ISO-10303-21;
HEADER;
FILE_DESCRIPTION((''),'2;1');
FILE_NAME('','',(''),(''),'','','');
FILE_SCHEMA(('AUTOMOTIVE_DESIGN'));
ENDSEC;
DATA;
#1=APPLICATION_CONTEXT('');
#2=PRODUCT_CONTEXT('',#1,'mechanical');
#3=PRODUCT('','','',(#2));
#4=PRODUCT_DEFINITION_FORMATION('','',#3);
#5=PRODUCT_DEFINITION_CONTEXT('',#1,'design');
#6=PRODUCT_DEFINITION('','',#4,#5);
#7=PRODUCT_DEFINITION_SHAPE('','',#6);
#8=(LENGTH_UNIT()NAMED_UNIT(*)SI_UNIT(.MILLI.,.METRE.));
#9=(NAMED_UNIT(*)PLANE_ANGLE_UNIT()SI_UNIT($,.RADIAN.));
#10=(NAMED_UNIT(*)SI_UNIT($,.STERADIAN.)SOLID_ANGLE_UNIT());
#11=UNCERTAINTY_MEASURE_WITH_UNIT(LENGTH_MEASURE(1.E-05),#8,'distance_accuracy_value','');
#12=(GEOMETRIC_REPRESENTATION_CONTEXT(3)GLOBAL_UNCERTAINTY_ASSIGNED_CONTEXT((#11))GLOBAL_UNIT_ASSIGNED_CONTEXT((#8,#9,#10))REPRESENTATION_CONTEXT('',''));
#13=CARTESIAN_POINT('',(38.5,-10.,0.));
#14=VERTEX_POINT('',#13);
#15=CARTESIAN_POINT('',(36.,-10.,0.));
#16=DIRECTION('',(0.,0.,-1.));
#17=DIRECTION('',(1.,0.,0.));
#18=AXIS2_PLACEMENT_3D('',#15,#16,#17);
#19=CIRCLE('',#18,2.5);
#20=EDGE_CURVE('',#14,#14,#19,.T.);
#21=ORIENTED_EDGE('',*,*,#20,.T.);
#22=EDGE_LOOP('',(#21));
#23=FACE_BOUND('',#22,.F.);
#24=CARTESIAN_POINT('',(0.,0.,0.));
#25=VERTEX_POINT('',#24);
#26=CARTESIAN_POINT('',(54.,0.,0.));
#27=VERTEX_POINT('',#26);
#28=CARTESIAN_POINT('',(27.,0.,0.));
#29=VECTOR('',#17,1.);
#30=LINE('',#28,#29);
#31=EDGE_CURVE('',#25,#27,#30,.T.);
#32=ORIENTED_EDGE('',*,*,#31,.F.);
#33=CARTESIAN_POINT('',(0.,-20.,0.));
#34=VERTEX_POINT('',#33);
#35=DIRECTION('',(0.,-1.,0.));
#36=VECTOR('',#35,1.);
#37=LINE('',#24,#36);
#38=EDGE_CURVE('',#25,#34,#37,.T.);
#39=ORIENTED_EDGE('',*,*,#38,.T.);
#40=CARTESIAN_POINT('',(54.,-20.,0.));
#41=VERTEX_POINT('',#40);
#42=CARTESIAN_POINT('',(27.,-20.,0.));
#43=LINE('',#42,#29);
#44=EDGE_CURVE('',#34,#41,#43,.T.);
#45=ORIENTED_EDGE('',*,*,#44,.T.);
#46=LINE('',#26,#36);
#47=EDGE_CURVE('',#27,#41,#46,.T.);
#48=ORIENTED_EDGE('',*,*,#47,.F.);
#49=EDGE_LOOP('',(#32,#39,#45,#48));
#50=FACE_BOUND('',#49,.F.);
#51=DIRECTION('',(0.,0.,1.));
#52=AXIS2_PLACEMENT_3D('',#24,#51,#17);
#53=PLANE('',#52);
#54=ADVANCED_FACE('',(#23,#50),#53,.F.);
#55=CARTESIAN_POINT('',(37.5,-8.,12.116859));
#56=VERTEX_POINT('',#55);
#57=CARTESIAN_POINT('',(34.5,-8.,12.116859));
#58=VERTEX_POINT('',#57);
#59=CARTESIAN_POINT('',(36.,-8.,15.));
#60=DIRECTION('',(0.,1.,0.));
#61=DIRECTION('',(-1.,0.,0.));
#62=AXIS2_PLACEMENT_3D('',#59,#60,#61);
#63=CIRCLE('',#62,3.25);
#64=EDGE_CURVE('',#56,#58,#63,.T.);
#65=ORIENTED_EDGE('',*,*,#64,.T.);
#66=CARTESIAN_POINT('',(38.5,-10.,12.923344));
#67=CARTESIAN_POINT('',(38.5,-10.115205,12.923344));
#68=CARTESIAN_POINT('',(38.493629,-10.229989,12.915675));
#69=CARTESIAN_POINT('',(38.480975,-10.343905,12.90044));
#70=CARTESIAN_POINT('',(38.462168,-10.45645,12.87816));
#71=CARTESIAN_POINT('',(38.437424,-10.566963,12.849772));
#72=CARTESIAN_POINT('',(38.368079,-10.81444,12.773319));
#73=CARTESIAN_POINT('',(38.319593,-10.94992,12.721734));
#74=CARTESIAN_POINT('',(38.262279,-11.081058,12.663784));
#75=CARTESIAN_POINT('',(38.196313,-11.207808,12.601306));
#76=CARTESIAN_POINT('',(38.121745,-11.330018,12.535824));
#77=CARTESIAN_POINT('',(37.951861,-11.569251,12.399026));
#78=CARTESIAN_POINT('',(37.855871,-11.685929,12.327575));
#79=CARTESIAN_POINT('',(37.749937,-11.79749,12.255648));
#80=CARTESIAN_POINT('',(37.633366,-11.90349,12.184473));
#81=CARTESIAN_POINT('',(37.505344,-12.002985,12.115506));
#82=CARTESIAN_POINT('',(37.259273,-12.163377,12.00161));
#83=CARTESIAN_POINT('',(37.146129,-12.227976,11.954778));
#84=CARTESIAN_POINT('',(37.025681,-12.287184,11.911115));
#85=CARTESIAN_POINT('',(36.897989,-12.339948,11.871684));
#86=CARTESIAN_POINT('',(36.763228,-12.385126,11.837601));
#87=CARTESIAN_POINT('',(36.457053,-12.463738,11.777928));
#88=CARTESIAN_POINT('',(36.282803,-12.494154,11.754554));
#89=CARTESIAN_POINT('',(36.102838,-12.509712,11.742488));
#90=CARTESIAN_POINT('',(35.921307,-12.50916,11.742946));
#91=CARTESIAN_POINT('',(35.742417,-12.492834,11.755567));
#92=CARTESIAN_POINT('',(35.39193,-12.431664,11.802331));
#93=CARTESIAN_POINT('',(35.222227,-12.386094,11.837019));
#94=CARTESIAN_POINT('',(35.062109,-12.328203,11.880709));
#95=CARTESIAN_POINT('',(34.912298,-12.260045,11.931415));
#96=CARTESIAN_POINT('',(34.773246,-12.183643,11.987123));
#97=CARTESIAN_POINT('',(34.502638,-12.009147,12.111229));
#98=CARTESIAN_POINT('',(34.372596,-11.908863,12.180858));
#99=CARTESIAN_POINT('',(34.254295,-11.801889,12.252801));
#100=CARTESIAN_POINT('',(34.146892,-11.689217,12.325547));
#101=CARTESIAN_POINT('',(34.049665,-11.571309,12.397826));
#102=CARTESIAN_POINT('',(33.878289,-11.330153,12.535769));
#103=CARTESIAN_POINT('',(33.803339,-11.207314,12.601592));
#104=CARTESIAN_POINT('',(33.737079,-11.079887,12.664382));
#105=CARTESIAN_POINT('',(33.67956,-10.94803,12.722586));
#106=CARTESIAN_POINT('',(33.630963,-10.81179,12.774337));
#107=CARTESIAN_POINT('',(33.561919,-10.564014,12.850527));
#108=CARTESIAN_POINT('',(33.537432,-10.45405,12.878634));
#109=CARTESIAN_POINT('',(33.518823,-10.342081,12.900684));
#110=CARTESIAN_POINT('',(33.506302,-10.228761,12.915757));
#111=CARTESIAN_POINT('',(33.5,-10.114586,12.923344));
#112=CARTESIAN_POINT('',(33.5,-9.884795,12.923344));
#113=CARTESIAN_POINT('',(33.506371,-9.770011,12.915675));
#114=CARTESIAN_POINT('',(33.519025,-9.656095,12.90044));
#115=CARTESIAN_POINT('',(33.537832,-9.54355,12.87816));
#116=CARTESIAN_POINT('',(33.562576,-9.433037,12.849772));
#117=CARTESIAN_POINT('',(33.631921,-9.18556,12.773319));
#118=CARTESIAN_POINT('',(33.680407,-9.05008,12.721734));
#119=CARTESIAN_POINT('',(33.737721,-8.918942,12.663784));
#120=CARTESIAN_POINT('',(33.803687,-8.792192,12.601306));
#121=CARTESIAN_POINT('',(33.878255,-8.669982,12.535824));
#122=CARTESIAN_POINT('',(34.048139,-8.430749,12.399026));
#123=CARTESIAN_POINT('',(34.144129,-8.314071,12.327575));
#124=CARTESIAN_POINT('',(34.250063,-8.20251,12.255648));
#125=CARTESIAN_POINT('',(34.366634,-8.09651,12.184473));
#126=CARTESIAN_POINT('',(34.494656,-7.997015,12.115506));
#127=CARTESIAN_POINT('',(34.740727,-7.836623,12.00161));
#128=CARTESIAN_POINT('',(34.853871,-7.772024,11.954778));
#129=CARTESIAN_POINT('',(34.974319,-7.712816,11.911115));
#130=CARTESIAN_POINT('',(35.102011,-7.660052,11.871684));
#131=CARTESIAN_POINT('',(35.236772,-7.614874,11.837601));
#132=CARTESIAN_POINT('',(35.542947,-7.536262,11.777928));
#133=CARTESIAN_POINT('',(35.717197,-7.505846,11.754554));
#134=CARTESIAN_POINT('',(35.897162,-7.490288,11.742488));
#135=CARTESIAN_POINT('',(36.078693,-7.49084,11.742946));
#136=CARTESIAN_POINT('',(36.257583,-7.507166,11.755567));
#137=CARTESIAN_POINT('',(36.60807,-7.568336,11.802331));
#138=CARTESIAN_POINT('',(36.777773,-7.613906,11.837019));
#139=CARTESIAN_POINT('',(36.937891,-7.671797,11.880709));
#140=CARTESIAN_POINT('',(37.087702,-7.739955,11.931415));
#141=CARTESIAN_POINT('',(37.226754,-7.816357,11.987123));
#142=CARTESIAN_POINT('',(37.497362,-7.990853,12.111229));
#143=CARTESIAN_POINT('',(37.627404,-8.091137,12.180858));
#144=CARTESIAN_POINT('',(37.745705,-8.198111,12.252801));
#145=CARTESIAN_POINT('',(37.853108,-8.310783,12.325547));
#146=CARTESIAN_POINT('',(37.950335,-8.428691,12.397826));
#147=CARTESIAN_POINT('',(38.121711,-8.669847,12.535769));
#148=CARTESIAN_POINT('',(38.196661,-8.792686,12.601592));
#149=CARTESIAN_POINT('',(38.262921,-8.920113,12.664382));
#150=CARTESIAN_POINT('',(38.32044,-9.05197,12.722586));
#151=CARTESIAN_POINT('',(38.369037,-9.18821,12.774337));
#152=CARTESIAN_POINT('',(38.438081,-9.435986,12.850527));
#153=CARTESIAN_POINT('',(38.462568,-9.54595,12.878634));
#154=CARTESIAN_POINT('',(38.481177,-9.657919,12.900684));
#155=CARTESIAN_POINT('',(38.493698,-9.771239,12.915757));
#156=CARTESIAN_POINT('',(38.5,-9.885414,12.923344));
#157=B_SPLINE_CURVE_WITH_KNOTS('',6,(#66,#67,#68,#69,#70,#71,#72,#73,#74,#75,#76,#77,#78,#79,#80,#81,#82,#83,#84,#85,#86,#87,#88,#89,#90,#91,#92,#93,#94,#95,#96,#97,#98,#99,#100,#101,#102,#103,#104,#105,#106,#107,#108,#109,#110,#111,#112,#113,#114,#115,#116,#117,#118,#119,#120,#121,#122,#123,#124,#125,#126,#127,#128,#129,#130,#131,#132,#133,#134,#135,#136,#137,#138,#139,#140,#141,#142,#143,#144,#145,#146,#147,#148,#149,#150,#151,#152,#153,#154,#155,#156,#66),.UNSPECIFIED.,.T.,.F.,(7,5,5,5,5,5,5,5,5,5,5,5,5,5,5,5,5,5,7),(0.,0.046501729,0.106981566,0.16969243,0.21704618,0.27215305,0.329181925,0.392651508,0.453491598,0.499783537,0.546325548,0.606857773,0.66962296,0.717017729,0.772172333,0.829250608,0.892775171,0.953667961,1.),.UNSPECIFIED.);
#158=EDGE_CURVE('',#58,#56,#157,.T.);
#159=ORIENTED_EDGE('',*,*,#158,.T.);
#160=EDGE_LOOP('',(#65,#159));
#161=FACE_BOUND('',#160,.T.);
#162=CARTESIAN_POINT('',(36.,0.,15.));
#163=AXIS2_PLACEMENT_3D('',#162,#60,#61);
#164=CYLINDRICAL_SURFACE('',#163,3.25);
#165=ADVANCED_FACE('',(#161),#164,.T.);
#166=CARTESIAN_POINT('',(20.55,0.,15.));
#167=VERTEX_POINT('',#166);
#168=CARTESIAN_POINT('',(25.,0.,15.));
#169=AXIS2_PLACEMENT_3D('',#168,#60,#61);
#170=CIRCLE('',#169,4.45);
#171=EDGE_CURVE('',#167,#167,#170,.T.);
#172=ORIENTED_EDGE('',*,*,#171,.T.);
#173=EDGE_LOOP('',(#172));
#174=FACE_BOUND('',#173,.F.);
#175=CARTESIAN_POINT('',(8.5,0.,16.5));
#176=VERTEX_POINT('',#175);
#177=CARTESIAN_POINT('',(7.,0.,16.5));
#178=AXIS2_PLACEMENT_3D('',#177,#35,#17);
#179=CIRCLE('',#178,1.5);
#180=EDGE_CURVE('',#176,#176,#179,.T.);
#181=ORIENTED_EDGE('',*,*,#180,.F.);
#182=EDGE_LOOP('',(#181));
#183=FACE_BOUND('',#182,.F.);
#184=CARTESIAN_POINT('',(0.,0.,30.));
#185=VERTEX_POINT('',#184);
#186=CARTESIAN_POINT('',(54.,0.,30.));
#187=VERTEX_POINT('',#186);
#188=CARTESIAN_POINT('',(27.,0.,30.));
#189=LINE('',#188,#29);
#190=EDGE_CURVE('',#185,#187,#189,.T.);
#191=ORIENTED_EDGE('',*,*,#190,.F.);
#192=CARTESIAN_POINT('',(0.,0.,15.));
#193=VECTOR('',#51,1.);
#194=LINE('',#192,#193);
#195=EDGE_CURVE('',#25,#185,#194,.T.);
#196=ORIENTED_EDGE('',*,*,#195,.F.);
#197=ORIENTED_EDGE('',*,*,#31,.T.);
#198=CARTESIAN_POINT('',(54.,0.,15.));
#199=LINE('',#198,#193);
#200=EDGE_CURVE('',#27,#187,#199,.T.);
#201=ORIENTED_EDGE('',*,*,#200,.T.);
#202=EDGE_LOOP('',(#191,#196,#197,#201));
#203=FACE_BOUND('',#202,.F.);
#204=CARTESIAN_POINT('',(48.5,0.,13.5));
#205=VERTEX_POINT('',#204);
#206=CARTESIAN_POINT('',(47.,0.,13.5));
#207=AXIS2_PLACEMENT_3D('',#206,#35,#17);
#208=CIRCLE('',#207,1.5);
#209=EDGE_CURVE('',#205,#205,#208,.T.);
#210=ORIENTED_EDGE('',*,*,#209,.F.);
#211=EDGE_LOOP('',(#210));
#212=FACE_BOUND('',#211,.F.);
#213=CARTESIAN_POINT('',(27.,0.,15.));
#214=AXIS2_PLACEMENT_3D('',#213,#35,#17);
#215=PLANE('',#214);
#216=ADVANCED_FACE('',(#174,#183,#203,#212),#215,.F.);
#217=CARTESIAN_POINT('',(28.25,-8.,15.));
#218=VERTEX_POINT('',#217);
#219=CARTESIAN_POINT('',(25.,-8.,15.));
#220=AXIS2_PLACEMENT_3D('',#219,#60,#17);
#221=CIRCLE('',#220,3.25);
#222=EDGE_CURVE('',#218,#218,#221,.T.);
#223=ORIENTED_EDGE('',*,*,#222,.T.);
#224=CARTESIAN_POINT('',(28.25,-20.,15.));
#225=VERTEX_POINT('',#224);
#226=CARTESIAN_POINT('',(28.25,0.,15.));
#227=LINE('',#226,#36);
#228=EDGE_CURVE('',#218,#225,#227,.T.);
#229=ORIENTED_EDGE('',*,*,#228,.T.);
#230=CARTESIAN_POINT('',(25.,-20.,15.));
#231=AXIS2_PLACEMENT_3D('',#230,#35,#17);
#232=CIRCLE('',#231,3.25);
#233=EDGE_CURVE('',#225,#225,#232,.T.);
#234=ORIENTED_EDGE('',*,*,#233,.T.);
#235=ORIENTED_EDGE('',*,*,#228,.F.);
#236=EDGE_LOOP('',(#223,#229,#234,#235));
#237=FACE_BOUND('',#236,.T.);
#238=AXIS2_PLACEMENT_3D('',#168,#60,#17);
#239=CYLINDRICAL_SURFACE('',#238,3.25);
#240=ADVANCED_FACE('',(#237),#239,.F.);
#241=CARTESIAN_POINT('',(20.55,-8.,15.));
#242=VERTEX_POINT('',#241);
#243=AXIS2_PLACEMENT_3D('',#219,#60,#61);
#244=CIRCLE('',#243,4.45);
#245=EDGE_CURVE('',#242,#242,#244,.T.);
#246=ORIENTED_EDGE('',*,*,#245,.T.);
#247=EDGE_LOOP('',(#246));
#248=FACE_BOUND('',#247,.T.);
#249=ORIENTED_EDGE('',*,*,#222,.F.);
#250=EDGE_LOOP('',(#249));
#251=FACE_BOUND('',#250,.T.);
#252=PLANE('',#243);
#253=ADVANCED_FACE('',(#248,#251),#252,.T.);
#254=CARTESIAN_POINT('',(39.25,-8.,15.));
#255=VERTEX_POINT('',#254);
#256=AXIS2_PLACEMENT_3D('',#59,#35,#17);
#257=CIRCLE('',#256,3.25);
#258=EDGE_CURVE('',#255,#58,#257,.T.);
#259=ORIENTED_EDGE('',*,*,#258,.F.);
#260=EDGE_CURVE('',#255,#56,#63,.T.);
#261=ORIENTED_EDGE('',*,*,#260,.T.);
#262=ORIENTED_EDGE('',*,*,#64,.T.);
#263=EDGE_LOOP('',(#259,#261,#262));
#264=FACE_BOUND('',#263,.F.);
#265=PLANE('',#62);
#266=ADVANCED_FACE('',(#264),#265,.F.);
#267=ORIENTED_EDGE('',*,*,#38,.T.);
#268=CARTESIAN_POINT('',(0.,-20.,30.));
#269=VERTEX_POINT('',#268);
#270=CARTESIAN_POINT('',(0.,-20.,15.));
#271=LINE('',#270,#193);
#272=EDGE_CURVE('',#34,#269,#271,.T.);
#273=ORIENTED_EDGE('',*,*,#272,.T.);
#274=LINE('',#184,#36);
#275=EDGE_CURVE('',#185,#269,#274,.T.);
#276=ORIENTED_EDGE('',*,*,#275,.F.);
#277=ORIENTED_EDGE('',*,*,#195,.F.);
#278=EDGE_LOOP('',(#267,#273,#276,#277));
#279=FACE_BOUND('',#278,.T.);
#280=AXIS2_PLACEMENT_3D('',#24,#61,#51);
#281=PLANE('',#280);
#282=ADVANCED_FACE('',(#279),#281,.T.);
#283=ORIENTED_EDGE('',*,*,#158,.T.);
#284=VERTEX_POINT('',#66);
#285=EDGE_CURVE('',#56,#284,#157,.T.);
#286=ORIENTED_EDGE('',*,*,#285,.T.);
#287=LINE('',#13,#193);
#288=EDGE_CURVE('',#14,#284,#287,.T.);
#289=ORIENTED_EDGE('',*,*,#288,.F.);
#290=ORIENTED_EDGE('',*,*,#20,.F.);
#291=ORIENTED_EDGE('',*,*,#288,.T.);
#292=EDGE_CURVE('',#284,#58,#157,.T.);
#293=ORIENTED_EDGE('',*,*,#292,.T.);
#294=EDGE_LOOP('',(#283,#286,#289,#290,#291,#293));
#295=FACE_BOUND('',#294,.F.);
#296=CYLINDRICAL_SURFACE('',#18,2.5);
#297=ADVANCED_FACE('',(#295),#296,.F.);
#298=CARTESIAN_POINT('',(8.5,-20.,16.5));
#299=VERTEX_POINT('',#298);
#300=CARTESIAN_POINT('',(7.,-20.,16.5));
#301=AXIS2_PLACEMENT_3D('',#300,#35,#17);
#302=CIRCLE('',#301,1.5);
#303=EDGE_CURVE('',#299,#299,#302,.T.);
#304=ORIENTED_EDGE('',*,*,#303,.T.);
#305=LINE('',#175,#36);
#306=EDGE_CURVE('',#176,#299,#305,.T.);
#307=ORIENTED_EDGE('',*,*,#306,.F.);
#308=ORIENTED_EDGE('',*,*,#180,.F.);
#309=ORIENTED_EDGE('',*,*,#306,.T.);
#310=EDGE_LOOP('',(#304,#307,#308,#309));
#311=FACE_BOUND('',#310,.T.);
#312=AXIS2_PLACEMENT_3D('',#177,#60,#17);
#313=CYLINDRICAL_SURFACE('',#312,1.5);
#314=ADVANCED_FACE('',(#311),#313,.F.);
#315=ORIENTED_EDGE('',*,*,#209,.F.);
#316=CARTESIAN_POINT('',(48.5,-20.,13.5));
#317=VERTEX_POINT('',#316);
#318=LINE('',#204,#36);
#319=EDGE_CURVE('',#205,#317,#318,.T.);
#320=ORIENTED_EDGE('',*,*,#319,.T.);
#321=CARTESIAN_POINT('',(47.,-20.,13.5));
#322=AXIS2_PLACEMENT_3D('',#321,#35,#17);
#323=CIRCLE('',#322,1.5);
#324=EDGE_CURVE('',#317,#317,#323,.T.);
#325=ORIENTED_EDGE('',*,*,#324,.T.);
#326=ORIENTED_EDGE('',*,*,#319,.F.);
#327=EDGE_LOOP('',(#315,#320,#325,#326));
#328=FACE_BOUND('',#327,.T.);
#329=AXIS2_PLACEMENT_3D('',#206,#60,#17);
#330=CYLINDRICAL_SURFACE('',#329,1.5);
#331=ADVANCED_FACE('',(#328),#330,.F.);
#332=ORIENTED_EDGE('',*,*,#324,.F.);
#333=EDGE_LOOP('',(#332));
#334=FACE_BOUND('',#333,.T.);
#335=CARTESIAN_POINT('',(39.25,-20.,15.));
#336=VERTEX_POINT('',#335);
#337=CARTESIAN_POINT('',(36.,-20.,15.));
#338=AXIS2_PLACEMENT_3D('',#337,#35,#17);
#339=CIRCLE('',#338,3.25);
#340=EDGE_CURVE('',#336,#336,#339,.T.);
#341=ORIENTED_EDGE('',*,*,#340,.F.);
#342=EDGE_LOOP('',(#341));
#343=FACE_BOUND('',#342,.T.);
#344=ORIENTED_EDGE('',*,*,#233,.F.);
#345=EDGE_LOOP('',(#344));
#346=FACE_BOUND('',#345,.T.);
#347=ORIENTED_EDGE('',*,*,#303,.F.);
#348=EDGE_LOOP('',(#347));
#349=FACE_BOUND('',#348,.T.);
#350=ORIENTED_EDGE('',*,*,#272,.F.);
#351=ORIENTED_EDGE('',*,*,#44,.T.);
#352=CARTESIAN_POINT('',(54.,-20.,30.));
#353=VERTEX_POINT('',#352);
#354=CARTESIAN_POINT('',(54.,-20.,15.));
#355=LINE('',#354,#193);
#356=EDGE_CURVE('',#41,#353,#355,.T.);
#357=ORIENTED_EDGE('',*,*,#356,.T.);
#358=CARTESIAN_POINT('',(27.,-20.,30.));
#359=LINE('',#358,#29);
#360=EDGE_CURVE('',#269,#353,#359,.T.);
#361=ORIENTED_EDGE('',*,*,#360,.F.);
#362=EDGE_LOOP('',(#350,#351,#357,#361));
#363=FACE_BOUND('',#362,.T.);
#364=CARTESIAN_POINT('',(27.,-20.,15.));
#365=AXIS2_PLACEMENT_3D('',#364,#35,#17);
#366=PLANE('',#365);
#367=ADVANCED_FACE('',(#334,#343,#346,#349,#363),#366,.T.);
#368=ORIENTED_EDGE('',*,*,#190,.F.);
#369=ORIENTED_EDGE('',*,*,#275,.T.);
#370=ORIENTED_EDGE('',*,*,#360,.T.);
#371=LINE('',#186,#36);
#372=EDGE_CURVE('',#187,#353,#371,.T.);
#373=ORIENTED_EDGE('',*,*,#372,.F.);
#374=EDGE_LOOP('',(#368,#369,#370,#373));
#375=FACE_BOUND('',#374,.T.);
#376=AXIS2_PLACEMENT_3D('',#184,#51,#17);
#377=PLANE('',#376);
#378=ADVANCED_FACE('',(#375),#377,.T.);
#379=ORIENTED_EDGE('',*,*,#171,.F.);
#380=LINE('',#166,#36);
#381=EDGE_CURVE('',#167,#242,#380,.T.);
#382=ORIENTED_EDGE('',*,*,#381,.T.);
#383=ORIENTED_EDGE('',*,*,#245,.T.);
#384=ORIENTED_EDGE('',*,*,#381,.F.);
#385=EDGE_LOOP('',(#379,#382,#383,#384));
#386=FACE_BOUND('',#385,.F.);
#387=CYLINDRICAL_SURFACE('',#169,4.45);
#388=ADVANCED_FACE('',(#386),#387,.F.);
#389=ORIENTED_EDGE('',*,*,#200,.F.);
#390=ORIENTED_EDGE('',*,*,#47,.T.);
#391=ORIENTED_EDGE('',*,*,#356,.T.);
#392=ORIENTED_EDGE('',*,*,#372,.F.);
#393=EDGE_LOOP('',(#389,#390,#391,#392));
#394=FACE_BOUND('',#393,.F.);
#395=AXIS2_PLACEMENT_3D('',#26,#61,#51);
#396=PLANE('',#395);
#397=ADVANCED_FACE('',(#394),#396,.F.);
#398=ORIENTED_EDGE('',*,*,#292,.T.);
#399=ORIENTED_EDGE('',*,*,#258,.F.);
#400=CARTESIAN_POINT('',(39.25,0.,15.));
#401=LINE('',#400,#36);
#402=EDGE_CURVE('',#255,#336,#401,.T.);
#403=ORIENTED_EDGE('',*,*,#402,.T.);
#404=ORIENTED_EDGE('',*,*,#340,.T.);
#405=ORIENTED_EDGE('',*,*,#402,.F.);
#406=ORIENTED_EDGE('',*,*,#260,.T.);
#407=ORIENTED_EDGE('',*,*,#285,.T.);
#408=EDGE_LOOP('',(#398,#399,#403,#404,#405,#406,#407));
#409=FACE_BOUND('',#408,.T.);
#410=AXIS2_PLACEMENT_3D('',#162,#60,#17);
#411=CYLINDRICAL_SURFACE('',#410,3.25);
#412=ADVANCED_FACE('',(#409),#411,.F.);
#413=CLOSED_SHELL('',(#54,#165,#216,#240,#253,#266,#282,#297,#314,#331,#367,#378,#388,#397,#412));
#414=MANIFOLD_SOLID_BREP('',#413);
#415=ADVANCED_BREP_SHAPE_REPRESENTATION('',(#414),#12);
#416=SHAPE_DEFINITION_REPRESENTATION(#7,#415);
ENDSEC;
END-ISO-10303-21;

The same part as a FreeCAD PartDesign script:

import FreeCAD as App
import Part
import Sketcher

doc = App.newDocument("Part")
params = doc.addObject("Spreadsheet::Sheet", "Params")
for row, (alias, value) in enumerate([
    ("sketch1_diameter", "3 mm"),
    ("sketch1_diameter2", "6.5 mm"),
    ("sketch1_width", "54 mm"),
    ("sketch1_height", "30 mm"),
    ("pad1_length", "20 mm"),
    ("sketch2_diameter", "5 mm"),
    ("pocket1_length", "16 mm"),
    ("sketch3_diameter", "8.9 mm"),
    ("pocket2_length", "8 mm"),
    ("sketch4_diameter", "6.5 mm"),
    ("pad2_length", "8 mm"),
], start=1):
    params.set(f"A{row}", alias)
    params.set(f"B{row}", "=" + value)
    params.setAlias(f"B{row}", alias)

body = doc.addObject("PartDesign::Body", "Body")

# Sketch on XZ plane
sketch1 = body.newObject("Sketcher::SketchObject", "Sketch")
sketch1.AttachmentSupport = (doc.getObject("XZ_Plane"), [""])
sketch1.MapMode = "FlatFace"
sketch1.addGeometry([
    Part.LineSegment(App.Vector(0, 30, 0), App.Vector(0, 0, 0)),  # 0
    Part.LineSegment(App.Vector(0, 0, 0), App.Vector(54, 0, 0)),  # 1
    Part.LineSegment(App.Vector(54, 0, 0), App.Vector(54, 30, 0)),  # 2
    Part.LineSegment(App.Vector(54, 30, 0), App.Vector(0, 30, 0)),  # 3
    Part.Circle(App.Vector(47, 13.5, 0), App.Vector(0, 0, 1), 1.5),  # 4
    Part.Circle(App.Vector(7, 16.5, 0), App.Vector(0, 0, 1), 1.5),  # 5
    Part.Circle(App.Vector(25, 15, 0), App.Vector(0, 0, 1), 3.25),  # 6
    Part.Circle(App.Vector(36, 15, 0), App.Vector(0, 0, 1), 3.25),  # 7
], False)
sketch1.addConstraint([
    Sketcher.Constraint("Coincident", 0, 2, 1, 1),
    Sketcher.Constraint("Coincident", 1, 2, 2, 1),
    Sketcher.Constraint("Coincident", 2, 2, 3, 1),
    Sketcher.Constraint("Coincident", 3, 2, 0, 1),
    Sketcher.Constraint("Vertical", 0),
    Sketcher.Constraint("Horizontal", 1),
    Sketcher.Constraint("Vertical", 2),
    Sketcher.Constraint("Horizontal", 3),
    Sketcher.Constraint("Coincident", 0, 2, -1, 1),
    Sketcher.Constraint("Equal", 4, 5),
    Sketcher.Constraint("Equal", 6, 7),
    Sketcher.Constraint("Horizontal", 6, 3, 7, 3),
    Sketcher.Constraint("Diameter", 4, 3.0),
    Sketcher.Constraint("Diameter", 6, 6.5),
    Sketcher.Constraint("DistanceX", 1, 1, 1, 2, 54.0),
    Sketcher.Constraint("DistanceY", 0, 2, 0, 1, 30.0),
    Sketcher.Constraint("DistanceX", -1, 1, 4, 3, 47.0),
    Sketcher.Constraint("DistanceX", -1, 1, 5, 3, 7.0),
    Sketcher.Constraint("DistanceX", -1, 1, 6, 3, 25.0),
    Sketcher.Constraint("DistanceY", -1, 1, 6, 3, 15.0),
    Sketcher.Constraint("DistanceX", -1, 1, 7, 3, 36.0),
    Sketcher.Constraint("DistanceY", 4, 3, 5, 3, 3.0),
    Sketcher.Constraint("DistanceY", -1, 1, 4, 3, 13.5),
])
sketch1.setExpression("Constraints[12]", "Params.sketch1_diameter")
sketch1.setExpression("Constraints[13]", "Params.sketch1_diameter2")
sketch1.setExpression("Constraints[14]", "Params.sketch1_width")
sketch1.setExpression("Constraints[15]", "Params.sketch1_height")
pad1 = body.newObject("PartDesign::Pad", "Pad")
pad1.Profile = sketch1
pad1.setExpression("Length", "Params.pad1_length")

# Sketch on XY plane
sketch2 = body.newObject("Sketcher::SketchObject", "Sketch001")
sketch2.AttachmentSupport = (doc.getObject("XY_Plane"), [""])
sketch2.MapMode = "FlatFace"
sketch2.addGeometry(Part.Circle(App.Vector(36, -10, 0), App.Vector(0, 0, 1), 2.5), False)
sketch2.addConstraint([
    Sketcher.Constraint("Diameter", 0, 5.0),
    Sketcher.Constraint("DistanceX", -1, 1, 0, 3, 36.0),
    Sketcher.Constraint("DistanceY", 0, 3, -1, 1, 10.0),
])
sketch2.setExpression("Constraints[0]", "Params.sketch2_diameter")
pocket1 = body.newObject("PartDesign::Pocket", "Pocket")
pocket1.Profile = sketch2
pocket1.setExpression("Length", "Params.pocket1_length")
pocket1.Reversed = True

# Sketch on XZ plane
sketch3 = body.newObject("Sketcher::SketchObject", "Sketch002")
sketch3.AttachmentSupport = (doc.getObject("XZ_Plane"), [""])
sketch3.MapMode = "FlatFace"
sketch3.addGeometry(Part.Circle(App.Vector(25, 15, 0), App.Vector(0, 0, 1), 4.45), False)
sketch3.addConstraint([
    Sketcher.Constraint("Diameter", 0, 8.9),
    Sketcher.Constraint("DistanceX", -1, 1, 0, 3, 25.0),
    Sketcher.Constraint("DistanceY", -1, 1, 0, 3, 15.0),
])
sketch3.setExpression("Constraints[0]", "Params.sketch3_diameter")
pocket2 = body.newObject("PartDesign::Pocket", "Pocket001")
pocket2.Profile = sketch3
pocket2.setExpression("Length", "Params.pocket2_length")
pocket2.Reversed = True

# Sketch on XZ plane
sketch4 = body.newObject("Sketcher::SketchObject", "Sketch003")
sketch4.AttachmentSupport = (doc.getObject("XZ_Plane"), [""])
sketch4.MapMode = "FlatFace"
sketch4.addGeometry(Part.Circle(App.Vector(36, 15, 0), App.Vector(0, 0, 1), 3.25), False)
sketch4.addConstraint([
    Sketcher.Constraint("Diameter", 0, 6.5),
    Sketcher.Constraint("DistanceX", -1, 1, 0, 3, 36.0),
    Sketcher.Constraint("DistanceY", -1, 1, 0, 3, 15.0),
])
sketch4.setExpression("Constraints[0]", "Params.sketch4_diameter")
pad2 = body.newObject("PartDesign::Pad", "Pad001")
pad2.Profile = sketch4
pad2.setExpression("Length", "Params.pad2_length")

doc.recompute()
